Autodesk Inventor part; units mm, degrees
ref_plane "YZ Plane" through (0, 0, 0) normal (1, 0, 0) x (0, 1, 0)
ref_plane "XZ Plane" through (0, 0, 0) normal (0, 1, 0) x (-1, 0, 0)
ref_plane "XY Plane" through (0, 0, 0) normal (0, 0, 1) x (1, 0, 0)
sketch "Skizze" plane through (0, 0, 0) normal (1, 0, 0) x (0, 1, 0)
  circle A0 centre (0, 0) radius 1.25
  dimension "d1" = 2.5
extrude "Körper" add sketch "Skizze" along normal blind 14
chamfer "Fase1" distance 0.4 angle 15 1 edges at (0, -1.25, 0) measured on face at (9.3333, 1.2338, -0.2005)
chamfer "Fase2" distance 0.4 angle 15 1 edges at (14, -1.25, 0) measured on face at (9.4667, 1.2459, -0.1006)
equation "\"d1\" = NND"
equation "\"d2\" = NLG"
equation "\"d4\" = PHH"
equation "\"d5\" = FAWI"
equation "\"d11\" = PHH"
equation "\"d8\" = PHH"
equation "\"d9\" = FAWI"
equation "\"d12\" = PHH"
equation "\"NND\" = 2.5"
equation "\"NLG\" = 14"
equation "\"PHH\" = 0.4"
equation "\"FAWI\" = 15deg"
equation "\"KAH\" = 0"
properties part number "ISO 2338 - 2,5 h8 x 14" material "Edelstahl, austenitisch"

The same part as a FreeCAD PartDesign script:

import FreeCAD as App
import Part
import Sketcher
from FreeCAD import Vector


def edges_at(feature, points):
    """Names of the edges that pass closest to the given points."""
    edges = feature.Shape.Edges
    near = lambda p: min(range(len(edges)), key=lambda i: edges[i].distToShape(Part.Vertex(*p))[0])
    return sorted({f"Edge{near(p) + 1}" for p in points})

doc = App.newDocument("Part")
body = doc.addObject("PartDesign::Body", "Body")

sketch1 = body.newObject("Sketcher::SketchObject", "Sketch")
sketch1.AttachmentSupport = (doc.getObject("YZ_Plane"), [""])
sketch1.MapMode = "FlatFace"
sketch1.addGeometry(Part.Circle(Vector(0, 0, 0), Vector(0, 0, 1), 1.2), False)
sketch1.addConstraint([
    Sketcher.Constraint("Coincident", 0, 3, -1, 1),
    Sketcher.Constraint("Diameter", 0, 2.5),
])
pad1 = body.newObject("PartDesign::Pad", "Pad")
pad1.Profile = sketch1
pad1.Length = 14
doc.recompute()

chamfer = body.newObject("PartDesign::Chamfer", "Chamfer")
chamfer.Base = (pad1, edges_at(pad1, [(0, -1.25, 0)]))
chamfer.ChamferType = "Distance and Angle"
chamfer.Size = 0.4
chamfer.Angle = 15
doc.recompute()

chamfer2 = body.newObject("PartDesign::Chamfer", "Chamfer001")
chamfer2.Base = (chamfer, edges_at(chamfer, [(14, -1.25, 0)]))
chamfer2.ChamferType = "Distance and Angle"
chamfer2.Size = 0.4
chamfer2.Angle = 15

doc.recompute()
